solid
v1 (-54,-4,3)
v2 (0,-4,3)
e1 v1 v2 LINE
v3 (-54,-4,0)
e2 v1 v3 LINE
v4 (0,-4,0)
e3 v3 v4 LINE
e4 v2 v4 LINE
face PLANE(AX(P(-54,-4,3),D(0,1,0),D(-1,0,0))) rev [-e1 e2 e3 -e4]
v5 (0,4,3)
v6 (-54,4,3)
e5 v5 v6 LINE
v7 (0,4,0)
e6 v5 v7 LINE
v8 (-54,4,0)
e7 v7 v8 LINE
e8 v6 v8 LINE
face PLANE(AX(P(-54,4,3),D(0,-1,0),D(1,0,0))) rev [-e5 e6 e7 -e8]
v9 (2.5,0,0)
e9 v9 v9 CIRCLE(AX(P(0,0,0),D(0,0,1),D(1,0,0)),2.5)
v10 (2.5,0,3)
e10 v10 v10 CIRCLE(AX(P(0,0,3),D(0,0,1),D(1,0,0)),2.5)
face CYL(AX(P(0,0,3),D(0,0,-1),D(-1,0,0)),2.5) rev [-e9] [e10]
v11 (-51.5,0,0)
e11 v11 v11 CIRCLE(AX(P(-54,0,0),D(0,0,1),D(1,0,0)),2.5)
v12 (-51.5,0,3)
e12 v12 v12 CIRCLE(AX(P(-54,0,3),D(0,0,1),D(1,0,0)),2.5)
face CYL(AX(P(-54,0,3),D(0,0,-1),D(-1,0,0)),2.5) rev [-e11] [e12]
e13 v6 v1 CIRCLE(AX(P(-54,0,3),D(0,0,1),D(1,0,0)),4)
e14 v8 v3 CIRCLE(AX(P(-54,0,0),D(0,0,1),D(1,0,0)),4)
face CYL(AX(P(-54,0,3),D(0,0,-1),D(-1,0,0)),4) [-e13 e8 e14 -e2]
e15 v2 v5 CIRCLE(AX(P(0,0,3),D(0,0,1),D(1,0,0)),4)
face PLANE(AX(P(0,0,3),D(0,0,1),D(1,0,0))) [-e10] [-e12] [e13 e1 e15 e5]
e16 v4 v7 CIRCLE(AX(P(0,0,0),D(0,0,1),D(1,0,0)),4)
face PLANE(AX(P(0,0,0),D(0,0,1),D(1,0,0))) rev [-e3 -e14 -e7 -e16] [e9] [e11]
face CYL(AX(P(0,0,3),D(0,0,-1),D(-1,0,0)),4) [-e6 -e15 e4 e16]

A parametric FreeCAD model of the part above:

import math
import FreeCAD as App
import Part
import Sketcher
Q = App.Units.Quantity

doc = App.newDocument("Part")
body = doc.addObject("PartDesign::Body", "Body")

# Sketch on XY plane
sketch1 = body.newObject("Sketcher::SketchObject", "Sketch")
sketch1.AttachmentSupport = (doc.getObject("XY_Plane"), [""])
sketch1.MapMode = "FlatFace"
sketch1.addGeometry([
    Part.LineSegment(App.Vector(0, 4, 0), App.Vector(-54, 4, 0)),  # 0
    Part.ArcOfCircle(Part.Circle(App.Vector(-54, 0, 0), App.Vector(0, 0, 1), 4), math.radians(90), math.radians(270)),  # 1
    Part.LineSegment(App.Vector(-54, -4, 0), App.Vector(0, -4, 0)),  # 2
    Part.ArcOfCircle(Part.Circle(App.Vector(0, 0, 0), App.Vector(0, 0, 1), 4), math.radians(-90), math.radians(90)),  # 3
    Part.Circle(App.Vector(0, 0, 0), App.Vector(0, 0, 1), 2.5),  # 4
    Part.Circle(App.Vector(-54, 0, 0), App.Vector(0, 0, 1), 2.5),  # 5
], False)
sketch1.addConstraint([
    Sketcher.Constraint("Tangent", 0, 2, 1, 1),
    Sketcher.Constraint("Tangent", 1, 2, 2, 1),
    Sketcher.Constraint("Tangent", 2, 2, 3, 1),
    Sketcher.Constraint("Tangent", 3, 2, 0, 1),
    Sketcher.Constraint("Horizontal", 0),
    Sketcher.Constraint("Horizontal", 2),
    Sketcher.Constraint("Coincident", 3, 3, -1, 1),
    Sketcher.Constraint("Coincident", 4, 3, -1, 1),
    Sketcher.Constraint("Coincident", 5, 3, 1, 3),
    Sketcher.Constraint("Equal", 4, 5),
    Sketcher.Constraint("Diameter", 4, Q("5 mm")),
    Sketcher.Constraint("Radius", 1, Q("4 mm")),
    Sketcher.Constraint("DistanceX", 0, 2, 0, 1, Q("54 mm")),
])
pad1 = body.newObject("PartDesign::Pad", "Pad")
pad1.Profile = sketch1
pad1.Length = 3

doc.recompute()
